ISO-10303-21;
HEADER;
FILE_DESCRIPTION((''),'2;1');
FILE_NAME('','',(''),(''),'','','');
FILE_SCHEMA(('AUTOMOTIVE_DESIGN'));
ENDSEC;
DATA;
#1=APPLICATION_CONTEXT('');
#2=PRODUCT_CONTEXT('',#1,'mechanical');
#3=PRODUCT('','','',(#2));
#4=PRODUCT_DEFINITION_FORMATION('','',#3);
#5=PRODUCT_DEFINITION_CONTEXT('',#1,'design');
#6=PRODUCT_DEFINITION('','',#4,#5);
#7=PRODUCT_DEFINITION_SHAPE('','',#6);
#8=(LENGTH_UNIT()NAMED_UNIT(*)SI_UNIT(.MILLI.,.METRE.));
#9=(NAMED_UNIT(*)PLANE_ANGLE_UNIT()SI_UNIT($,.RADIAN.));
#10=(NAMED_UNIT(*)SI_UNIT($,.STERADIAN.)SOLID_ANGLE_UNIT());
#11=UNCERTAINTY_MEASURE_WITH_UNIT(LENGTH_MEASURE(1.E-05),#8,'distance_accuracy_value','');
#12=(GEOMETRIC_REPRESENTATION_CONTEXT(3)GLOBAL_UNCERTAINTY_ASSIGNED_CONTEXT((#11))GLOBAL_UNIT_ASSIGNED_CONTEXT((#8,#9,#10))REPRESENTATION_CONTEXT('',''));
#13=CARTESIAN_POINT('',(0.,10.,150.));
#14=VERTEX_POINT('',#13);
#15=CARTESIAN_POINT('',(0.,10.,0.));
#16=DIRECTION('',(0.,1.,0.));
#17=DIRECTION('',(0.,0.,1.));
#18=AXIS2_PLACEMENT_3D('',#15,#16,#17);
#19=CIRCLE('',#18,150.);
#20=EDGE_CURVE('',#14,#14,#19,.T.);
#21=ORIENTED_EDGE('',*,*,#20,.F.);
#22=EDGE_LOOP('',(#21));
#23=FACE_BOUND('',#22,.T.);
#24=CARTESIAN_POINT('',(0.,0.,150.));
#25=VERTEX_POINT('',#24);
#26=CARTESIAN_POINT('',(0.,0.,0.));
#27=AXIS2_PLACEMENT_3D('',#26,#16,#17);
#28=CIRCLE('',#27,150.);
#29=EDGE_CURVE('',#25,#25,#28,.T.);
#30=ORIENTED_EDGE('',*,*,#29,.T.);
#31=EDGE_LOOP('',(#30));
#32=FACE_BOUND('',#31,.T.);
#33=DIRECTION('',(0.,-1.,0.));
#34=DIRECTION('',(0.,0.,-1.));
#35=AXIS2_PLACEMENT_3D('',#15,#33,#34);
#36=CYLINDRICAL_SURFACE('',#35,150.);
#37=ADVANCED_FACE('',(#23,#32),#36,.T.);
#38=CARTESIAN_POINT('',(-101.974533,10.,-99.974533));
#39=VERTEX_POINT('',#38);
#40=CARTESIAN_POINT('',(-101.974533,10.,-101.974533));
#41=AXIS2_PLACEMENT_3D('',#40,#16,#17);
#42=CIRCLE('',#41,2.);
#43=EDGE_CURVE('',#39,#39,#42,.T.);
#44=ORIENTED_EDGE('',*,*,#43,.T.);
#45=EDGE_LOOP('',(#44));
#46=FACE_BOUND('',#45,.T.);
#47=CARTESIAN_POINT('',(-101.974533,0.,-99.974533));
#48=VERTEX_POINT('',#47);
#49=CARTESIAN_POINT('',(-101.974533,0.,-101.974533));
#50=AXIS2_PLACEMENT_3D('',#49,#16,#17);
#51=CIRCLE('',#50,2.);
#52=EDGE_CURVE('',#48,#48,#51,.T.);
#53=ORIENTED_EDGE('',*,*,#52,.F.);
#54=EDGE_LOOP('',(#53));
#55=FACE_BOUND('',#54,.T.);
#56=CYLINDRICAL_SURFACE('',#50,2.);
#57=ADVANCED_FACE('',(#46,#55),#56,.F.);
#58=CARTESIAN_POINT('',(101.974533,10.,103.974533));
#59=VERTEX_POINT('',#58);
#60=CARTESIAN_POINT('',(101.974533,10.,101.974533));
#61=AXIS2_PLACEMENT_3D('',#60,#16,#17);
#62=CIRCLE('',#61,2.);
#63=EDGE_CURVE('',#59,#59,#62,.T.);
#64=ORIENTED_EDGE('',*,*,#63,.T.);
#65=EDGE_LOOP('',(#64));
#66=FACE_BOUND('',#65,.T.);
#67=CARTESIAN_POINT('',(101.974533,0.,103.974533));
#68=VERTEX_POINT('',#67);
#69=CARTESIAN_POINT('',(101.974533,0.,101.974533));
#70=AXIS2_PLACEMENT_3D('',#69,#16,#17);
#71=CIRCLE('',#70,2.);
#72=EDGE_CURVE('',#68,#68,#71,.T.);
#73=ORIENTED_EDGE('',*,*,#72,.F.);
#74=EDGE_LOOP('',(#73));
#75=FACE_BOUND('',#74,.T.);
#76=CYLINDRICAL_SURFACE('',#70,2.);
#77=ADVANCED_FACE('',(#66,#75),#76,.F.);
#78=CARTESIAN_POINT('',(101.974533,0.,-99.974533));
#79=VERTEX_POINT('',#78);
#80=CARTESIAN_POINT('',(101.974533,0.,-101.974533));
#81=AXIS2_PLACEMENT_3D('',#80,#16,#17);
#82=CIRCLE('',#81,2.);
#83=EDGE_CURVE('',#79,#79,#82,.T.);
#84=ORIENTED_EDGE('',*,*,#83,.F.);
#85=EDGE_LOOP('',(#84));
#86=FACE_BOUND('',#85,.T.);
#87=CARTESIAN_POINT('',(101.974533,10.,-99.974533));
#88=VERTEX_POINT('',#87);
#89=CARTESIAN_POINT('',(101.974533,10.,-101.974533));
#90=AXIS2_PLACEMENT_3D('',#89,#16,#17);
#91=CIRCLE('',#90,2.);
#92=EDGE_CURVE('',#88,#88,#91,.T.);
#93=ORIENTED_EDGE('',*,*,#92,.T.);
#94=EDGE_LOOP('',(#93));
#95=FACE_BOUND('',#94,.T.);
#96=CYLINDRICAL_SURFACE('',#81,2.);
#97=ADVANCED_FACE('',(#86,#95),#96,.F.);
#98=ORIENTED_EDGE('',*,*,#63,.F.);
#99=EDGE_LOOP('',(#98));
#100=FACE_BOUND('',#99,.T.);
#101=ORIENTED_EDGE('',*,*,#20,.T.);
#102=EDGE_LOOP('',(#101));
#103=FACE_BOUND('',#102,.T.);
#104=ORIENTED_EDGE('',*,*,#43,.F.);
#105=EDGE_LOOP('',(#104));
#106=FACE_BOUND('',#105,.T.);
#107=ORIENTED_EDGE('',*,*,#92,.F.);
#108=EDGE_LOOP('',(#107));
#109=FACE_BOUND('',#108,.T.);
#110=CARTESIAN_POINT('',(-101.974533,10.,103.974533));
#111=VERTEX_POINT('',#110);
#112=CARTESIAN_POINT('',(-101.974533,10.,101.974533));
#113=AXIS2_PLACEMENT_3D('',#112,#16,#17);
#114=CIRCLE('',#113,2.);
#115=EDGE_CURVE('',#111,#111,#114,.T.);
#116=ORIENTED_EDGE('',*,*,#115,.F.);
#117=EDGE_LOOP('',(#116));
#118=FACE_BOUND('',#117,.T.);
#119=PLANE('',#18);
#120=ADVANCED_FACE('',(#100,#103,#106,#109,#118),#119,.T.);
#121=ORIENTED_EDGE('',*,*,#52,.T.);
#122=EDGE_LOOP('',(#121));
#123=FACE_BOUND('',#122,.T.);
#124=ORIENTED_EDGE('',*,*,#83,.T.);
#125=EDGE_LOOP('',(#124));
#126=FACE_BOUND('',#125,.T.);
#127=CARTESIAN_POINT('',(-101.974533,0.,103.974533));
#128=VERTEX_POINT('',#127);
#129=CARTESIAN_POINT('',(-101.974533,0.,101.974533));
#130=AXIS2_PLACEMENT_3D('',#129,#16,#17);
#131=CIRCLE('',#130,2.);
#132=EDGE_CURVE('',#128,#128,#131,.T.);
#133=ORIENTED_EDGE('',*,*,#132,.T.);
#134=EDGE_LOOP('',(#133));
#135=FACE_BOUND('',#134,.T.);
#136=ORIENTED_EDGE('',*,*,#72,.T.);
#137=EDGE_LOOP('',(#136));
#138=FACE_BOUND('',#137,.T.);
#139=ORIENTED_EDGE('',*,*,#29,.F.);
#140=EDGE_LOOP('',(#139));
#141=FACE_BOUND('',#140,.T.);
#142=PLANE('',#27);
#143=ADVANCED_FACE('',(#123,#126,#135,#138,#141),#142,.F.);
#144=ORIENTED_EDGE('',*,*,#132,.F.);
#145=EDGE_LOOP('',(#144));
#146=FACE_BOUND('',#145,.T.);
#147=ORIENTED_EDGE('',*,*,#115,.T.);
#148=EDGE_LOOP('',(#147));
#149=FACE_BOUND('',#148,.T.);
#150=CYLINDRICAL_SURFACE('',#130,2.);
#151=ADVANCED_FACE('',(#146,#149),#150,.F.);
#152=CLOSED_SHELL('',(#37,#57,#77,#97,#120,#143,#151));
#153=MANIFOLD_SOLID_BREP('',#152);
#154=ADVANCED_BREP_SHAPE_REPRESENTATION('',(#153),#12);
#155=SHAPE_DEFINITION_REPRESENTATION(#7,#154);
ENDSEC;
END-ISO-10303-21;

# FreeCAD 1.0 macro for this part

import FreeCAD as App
import Part
import Sketcher
Q = App.Units.Quantity

doc = App.newDocument("Part")
body = doc.addObject("PartDesign::Body", "Body")

sketch1 = body.newObject("Sketcher::SketchObject", "Sketch")
sketch1.AttachmentSupport = (doc.getObject("XZ_Plane"), [""])
sketch1.MapMode = "FlatFace"
sketch1.addGeometry(Part.Circle(App.Vector(0, 0, 0), App.Vector(0, 0, 1), 150), False)
sketch1.addConstraint([
    Sketcher.Constraint("Coincident", 0, 3, -1, 1),
    Sketcher.Constraint("Diameter", 0, Q("300 mm")),
])
pad1 = body.newObject("PartDesign::Pad", "Pad")
pad1.Profile = sketch1
pad1.Length = 10
pad1.Reversed = True

sketch2 = body.newObject("Sketcher::SketchObject", "Sketch001")
sketch2.AttachmentSupport = (doc.getObject("XZ_Plane"), [""])
sketch2.MapMode = "FlatFace"
sketch2.AttachmentOffset = App.Placement(App.Vector(0, 0, -10), App.Rotation())
sketch2.addGeometry([
    Part.Circle(App.Vector(102, -102, 0), App.Vector(0, 0, 1), 2),
    Part.Circle(App.Vector(102, 102, 0), App.Vector(0, 0, 1), 2),
    Part.Circle(App.Vector(-102, 102, 0), App.Vector(0, 0, 1), 2),
    Part.Circle(App.Vector(-102, -102, 0), App.Vector(0, 0, 1), 2),
], False)
sketch2.addConstraint([
    Sketcher.Constraint("Equal", 0, 1),
    Sketcher.Constraint("Equal", 1, 2),
    Sketcher.Constraint("Equal", 2, 3),
    Sketcher.Constraint("Symmetric", 0, 3, 2, 3, -1, 1),
    Sketcher.Constraint("Symmetric", 1, 3, 3, 3, -1, 1),
    Sketcher.Constraint("Symmetric", 1, 3, 2, 3, -2),
    Sketcher.Constraint("Diameter", 0, Q("4 mm")),
    Sketcher.Constraint("DistanceX", -1, 1, 0, 3, Q("101.974533 mm")),
    Sketcher.Constraint("DistanceY", 0, 3, -1, 1, Q("101.974533 mm")),
])
pocket1 = body.newObject("PartDesign::Pocket", "Pocket")
pocket1.Profile = sketch2
pocket1.Length = 10
pocket1.Reversed = True

doc.recompute()
